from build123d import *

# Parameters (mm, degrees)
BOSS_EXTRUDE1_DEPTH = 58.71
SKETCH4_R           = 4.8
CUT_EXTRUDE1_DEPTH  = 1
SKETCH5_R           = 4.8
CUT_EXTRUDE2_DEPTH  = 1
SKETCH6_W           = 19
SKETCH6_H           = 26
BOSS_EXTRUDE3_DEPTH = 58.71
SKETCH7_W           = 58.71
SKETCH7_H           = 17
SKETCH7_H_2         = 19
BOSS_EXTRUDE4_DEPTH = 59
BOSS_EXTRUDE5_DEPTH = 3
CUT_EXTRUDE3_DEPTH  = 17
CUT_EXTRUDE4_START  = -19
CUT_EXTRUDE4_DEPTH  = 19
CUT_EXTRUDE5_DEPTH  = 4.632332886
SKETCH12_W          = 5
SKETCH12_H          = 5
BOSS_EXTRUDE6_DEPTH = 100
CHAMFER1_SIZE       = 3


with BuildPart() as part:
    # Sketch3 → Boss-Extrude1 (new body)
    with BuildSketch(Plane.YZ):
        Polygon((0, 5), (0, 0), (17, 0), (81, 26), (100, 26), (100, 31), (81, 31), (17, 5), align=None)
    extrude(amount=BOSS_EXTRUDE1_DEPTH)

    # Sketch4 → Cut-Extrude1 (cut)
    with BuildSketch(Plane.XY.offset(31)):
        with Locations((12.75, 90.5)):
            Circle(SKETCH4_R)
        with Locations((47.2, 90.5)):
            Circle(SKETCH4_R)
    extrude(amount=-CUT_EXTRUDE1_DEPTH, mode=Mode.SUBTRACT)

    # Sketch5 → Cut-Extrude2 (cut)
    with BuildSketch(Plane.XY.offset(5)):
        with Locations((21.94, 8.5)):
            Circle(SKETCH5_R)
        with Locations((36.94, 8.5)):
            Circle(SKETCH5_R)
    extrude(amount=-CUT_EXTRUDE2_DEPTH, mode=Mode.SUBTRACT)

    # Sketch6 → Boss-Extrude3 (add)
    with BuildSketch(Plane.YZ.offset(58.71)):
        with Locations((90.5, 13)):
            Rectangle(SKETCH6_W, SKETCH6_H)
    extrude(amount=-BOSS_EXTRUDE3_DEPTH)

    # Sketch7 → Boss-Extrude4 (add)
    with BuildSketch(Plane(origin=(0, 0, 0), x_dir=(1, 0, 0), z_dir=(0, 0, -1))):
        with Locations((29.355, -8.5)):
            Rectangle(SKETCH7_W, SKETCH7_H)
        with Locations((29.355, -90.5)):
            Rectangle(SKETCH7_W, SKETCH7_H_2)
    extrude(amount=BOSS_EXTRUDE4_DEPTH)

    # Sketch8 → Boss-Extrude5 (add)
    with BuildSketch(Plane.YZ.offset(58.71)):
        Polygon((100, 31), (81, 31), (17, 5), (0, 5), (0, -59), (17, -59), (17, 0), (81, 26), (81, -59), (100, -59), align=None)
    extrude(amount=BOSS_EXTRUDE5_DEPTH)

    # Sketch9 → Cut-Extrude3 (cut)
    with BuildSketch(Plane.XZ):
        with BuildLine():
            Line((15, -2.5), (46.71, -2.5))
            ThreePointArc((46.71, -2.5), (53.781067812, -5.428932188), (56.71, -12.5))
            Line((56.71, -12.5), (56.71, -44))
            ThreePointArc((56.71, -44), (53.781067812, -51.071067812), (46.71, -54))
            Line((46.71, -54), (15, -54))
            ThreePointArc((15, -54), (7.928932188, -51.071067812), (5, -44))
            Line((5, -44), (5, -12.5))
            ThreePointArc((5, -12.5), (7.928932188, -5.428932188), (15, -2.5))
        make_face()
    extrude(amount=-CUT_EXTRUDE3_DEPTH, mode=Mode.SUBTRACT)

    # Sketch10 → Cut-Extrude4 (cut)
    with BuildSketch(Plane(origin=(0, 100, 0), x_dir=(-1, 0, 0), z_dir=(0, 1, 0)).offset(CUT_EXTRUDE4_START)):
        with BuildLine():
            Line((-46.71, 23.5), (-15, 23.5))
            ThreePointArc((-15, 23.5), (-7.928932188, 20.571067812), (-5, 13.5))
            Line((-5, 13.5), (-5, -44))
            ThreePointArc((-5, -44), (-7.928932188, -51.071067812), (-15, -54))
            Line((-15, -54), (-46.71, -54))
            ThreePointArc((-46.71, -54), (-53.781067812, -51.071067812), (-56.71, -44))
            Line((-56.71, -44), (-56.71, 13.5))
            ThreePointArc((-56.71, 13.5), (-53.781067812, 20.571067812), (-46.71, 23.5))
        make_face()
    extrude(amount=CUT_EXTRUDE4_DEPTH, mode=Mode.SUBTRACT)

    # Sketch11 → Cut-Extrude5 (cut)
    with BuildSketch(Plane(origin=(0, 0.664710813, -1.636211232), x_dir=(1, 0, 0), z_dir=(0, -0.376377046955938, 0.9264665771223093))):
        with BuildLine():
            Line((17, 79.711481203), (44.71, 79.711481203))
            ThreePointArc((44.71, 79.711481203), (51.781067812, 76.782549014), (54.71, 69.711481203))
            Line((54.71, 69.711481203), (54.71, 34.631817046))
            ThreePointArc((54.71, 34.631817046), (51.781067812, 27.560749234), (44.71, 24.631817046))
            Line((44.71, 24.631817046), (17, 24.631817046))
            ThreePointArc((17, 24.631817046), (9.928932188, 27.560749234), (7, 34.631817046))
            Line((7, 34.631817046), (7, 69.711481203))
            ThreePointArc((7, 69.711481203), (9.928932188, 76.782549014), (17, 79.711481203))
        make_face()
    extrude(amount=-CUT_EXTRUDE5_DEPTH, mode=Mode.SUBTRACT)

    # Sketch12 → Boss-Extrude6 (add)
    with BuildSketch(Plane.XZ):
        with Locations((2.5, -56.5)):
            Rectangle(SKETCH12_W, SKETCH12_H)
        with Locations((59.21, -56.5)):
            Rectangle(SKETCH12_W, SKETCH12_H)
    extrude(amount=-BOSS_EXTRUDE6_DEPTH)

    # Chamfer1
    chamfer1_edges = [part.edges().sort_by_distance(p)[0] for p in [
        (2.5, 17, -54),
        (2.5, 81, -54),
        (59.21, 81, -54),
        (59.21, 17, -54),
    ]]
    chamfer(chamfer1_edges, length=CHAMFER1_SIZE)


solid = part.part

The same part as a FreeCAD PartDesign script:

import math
import FreeCAD as App
import Part
import Sketcher

V = App.Vector


def edges_at(feature, points):
    """Names of the edges that pass closest to the given points."""
    edges = feature.Shape.Edges
    near = lambda p: min(range(len(edges)), key=lambda i: edges[i].distToShape(Part.Vertex(*p))[0])
    return sorted({f"Edge{near(p) + 1}" for p in points})


def add_polygon(sketch, points):
    """Adds a closed chain of lines whose ends are joined by coincident constraints."""
    first, n = sketch.GeometryCount, len(points)
    for a, b in zip(points, points[1:] + points[:1]):
        sketch.addGeometry(Part.LineSegment(App.Vector(*a, 0), App.Vector(*b, 0)), False)
    for i in range(n):
        sketch.addConstraint(Sketcher.Constraint("Coincident", first + i, 2, first + (i + 1) % n, 1))

doc = App.newDocument("Part")
params = doc.addObject("Spreadsheet::Sheet", "Params")
for row, (alias, value) in enumerate([
    ("sketch1_width", "17 mm"),
    ("sketch1_width2", "19 mm"),
    ("sketch1_height", "5 mm"),
    ("pad1_length", "58.71 mm"),
    ("sketch2_diameter", "9.6 mm"),
    ("pocket1_length", "1 mm"),
    ("sketch3_diameter", "9.6 mm"),
    ("pocket2_length", "1 mm"),
    ("sketch4_width", "19 mm"),
    ("sketch4_height", "26 mm"),
    ("pad2_length", "58.71 mm"),
    ("sketch5_height", "17 mm"),
    ("sketch5_height2", "19 mm"),
    ("sketch5_width", "58.71 mm"),
    ("pad3_length", "59 mm"),
    ("sketch6_width", "19 mm"),
    ("sketch6_width2", "17 mm"),
    ("sketch6_height", "64 mm"),
    ("sketch6_height2", "59 mm"),
    ("sketch6_height3", "85 mm"),
    ("pad4_length", "3 mm"),
    ("sketch7_radius", "10 mm"),
    ("sketch7_height", "31.5 mm"),
    ("sketch7_width", "31.71 mm"),
    ("pocket3_length", "17 mm"),
    ("sketch8_radius", "10 mm"),
    ("sketch8_height", "57.5 mm"),
    ("sketch8_width", "31.71 mm"),
    ("pocket4_length", "19 mm"),
    ("sketch9_radius", "10 mm"),
    ("sketch9_width", "27.71 mm"),
    ("pocket5_length", "4.632333 mm"),
    ("sketch10_width", "5 mm"),
    ("pad5_length", "100 mm"),
    ("chamfer_size", "3 mm"),
], start=1):
    params.set(f"A{row}", alias)
    params.set(f"B{row}", "=" + value)
    params.setAlias(f"B{row}", alias)

body = doc.addObject("PartDesign::Body", "Body")

# Sketch on YZ plane
sketch1 = body.newObject("Sketcher::SketchObject", "Sketch")
sketch1.AttachmentSupport = (doc.getObject("YZ_Plane"), [""])
sketch1.MapMode = "FlatFace"
add_polygon(sketch1, [(0, 5), (0, 0), (17, 0), (81, 26), (100, 26), (100, 31), (81, 31), (17, 5)])  # lines 0-7
sketch1.addConstraint(Sketcher.Constraint("Vertical", 0))
sketch1.addConstraint(Sketcher.Constraint("Horizontal", 1))
sketch1.addConstraint(Sketcher.Constraint("Horizontal", 3))
sketch1.addConstraint(Sketcher.Constraint("Vertical", 4))
sketch1.addConstraint(Sketcher.Constraint("Horizontal", 5))
sketch1.addConstraint(Sketcher.Constraint("Horizontal", 7))
sketch1.addConstraint(Sketcher.Constraint("Coincident", 0, 2, -1, 1))
sketch1.addConstraint(Sketcher.Constraint("Parallel", 2, 6))
sketch1.addConstraint(Sketcher.Constraint("Vertical", 2, 2, 5, 2))
sketch1.addConstraint(Sketcher.Constraint("Vertical", 1, 2, 6, 2))
sketch1.addConstraint(Sketcher.Constraint("DistanceX", 1, 1, 1, 2, 17.0))
sketch1.addConstraint(Sketcher.Constraint("DistanceX", 3, 1, 3, 2, 19.0))
sketch1.addConstraint(Sketcher.Constraint("DistanceY", 0, 2, 0, 1, 5.0))
sketch1.addConstraint(Sketcher.Constraint("DistanceX", -1, 1, 2, 2, 81.0))
sketch1.addConstraint(Sketcher.Constraint("DistanceY", -1, 1, 2, 2, 26.0))
sketch1.setExpression("Constraints[18]", "Params.sketch1_width")
sketch1.setExpression("Constraints[19]", "Params.sketch1_width2")
sketch1.setExpression("Constraints[20]", "Params.sketch1_height")
pad1 = body.newObject("PartDesign::Pad", "Pad")
pad1.Profile = sketch1
pad1.setExpression("Length", "Params.pad1_length")

# Sketch on XY plane
sketch2 = body.newObject("Sketcher::SketchObject", "Sketch001")
sketch2.AttachmentSupport = (doc.getObject("XY_Plane"), [""])
sketch2.MapMode = "FlatFace"
sketch2.AttachmentOffset = App.Placement(V(0, 0, 31), App.Rotation())
sketch2.addGeometry(Part.Circle(V(12.75, 90.5, 0), V(0, 0, 1), 4.8), False)
sketch2.addGeometry(Part.Circle(V(47.2, 90.5, 0), V(0, 0, 1), 4.8), False)
sketch2.addConstraint(Sketcher.Constraint("Equal", 0, 1))
sketch2.addConstraint(Sketcher.Constraint("Horizontal", 0, 3, 1, 3))
sketch2.addConstraint(Sketcher.Constraint("Diameter", 0, 9.6))
sketch2.addConstraint(Sketcher.Constraint("DistanceY", -1, 1, 0, 3, 90.5))
sketch2.addConstraint(Sketcher.Constraint("DistanceX", -1, 1, 1, 3, 47.2))
sketch2.addConstraint(Sketcher.Constraint("DistanceX", -1, 1, 0, 3, 12.75))
sketch2.setExpression("Constraints[2]", "Params.sketch2_diameter")
pocket1 = body.newObject("PartDesign::Pocket", "Pocket")
pocket1.Profile = sketch2
pocket1.setExpression("Length", "Params.pocket1_length")

# Sketch on XY plane
sketch3 = body.newObject("Sketcher::SketchObject", "Sketch002")
sketch3.AttachmentSupport = (doc.getObject("XY_Plane"), [""])
sketch3.MapMode = "FlatFace"
sketch3.AttachmentOffset = App.Placement(V(0, 0, 5), App.Rotation())
sketch3.addGeometry(Part.Circle(V(21.94, 8.5, 0), V(0, 0, 1), 4.8), False)
sketch3.addGeometry(Part.Circle(V(36.94, 8.5, 0), V(0, 0, 1), 4.8), False)
sketch3.addConstraint(Sketcher.Constraint("Equal", 0, 1))
sketch3.addConstraint(Sketcher.Constraint("Horizontal", 0, 3, 1, 3))
sketch3.addConstraint(Sketcher.Constraint("Diameter", 0, 9.6))
sketch3.addConstraint(Sketcher.Constraint("DistanceX", 0, 3, 1, 3, 15.0))
sketch3.addConstraint(Sketcher.Constraint("DistanceY", -1, 1, 0, 3, 8.5))
sketch3.addConstraint(Sketcher.Constraint("DistanceX", -1, 1, 0, 3, 21.94))
sketch3.setExpression("Constraints[2]", "Params.sketch3_diameter")
pocket2 = body.newObject("PartDesign::Pocket", "Pocket001")
pocket2.Profile = sketch3
pocket2.setExpression("Length", "Params.pocket2_length")

# Sketch on YZ plane
sketch4 = body.newObject("Sketcher::SketchObject", "Sketch003")
sketch4.AttachmentSupport = (doc.getObject("YZ_Plane"), [""])
sketch4.MapMode = "FlatFace"
sketch4.AttachmentOffset = App.Placement(V(0, 0, 58.71), App.Rotation())
add_polygon(sketch4, [(81, 26), (81, 0), (100, 0), (100, 26)])  # lines 0-3
sketch4.addConstraint(Sketcher.Constraint("Vertical", 0))
sketch4.addConstraint(Sketcher.Constraint("Horizontal", 1))
sketch4.addConstraint(Sketcher.Constraint("Vertical", 2))
sketch4.addConstraint(Sketcher.Constraint("Horizontal", 3))
sketch4.addConstraint(Sketcher.Constraint("PointOnObject", 0, 2, -1))
sketch4.addConstraint(Sketcher.Constraint("DistanceX", 1, 1, 1, 2, 19.0))
sketch4.addConstraint(Sketcher.Constraint("DistanceY", 0, 2, 0, 1, 26.0))
sketch4.addConstraint(Sketcher.Constraint("DistanceX", -1, 1, 0, 2, 81.0))
sketch4.setExpression("Constraints[9]", "Params.sketch4_width")
sketch4.setExpression("Constraints[10]", "Params.sketch4_height")
pad2 = body.newObject("PartDesign::Pad", "Pad001")
pad2.Profile = sketch4
pad2.setExpression("Length", "Params.pad2_length")
pad2.Reversed = True

# Sketch on XY plane
sketch5 = body.newObject("Sketcher::SketchObject", "Sketch004")
sketch5.AttachmentSupport = (doc.getObject("XY_Plane"), [""])
sketch5.MapMode = "FlatFace"
add_polygon(sketch5, [(0, 0), (0, 17), (58.71, 17), (58.71, 0)])  # lines 0-3
add_polygon(sketch5, [(0, 81), (0, 100), (58.71, 100), (58.71, 81)])  # lines 4-7
sketch5.addConstraint(Sketcher.Constraint("Vertical", 0))
sketch5.addConstraint(Sketcher.Constraint("Horizontal", 1))
sketch5.addConstraint(Sketcher.Constraint("Vertical", 2))
sketch5.addConstraint(Sketcher.Constraint("Horizontal", 3))
sketch5.addConstraint(Sketcher.Constraint("Vertical", 4))
sketch5.addConstraint(Sketcher.Constraint("Horizontal", 5))
sketch5.addConstraint(Sketcher.Constraint("Vertical", 6))
sketch5.addConstraint(Sketcher.Constraint("Horizontal", 7))
sketch5.addConstraint(Sketcher.Constraint("Coincident", 3, 2, -1, 1))
sketch5.addConstraint(Sketcher.Constraint("PointOnObject", 4, 2, -2))
sketch5.addConstraint(Sketcher.Constraint("Vertical", 2, 2, 5, 2))
sketch5.addConstraint(Sketcher.Constraint("DistanceY", 0, 1, 0, 2, 17.0))
sketch5.addConstraint(Sketcher.Constraint("DistanceY", 4, 1, 4, 2, 19.0))
sketch5.addConstraint(Sketcher.Constraint("DistanceY", -1, 1, 4, 2, 100.0))
sketch5.addConstraint(Sketcher.Constraint("DistanceX", 1, 1, 1, 2, 58.71))
sketch5.setExpression("Constraints[19]", "Params.sketch5_height")
sketch5.setExpression("Constraints[20]", "Params.sketch5_height2")
sketch5.setExpression("Constraints[22]", "Params.sketch5_width")
pad3 = body.newObject("PartDesign::Pad", "Pad002")
pad3.Profile = sketch5
pad3.setExpression("Length", "Params.pad3_length")
pad3.Reversed = True

# Sketch on YZ plane
sketch6 = body.newObject("Sketcher::SketchObject", "Sketch005")
sketch6.AttachmentSupport = (doc.getObject("YZ_Plane"), [""])
sketch6.MapMode = "FlatFace"
sketch6.AttachmentOffset = App.Placement(V(0, 0, 58.71), App.Rotation())
add_polygon(sketch6, [(100, 31), (81, 31), (17, 5), (0, 5), (0, -59), (17, -59), (17, 0), (81, 26), (81, -59), (100, -59)])  # lines 0-9
sketch6.addConstraint(Sketcher.Constraint("Horizontal", 0))
sketch6.addConstraint(Sketcher.Constraint("Horizontal", 2))
sketch6.addConstraint(Sketcher.Constraint("Vertical", 3))
sketch6.addConstraint(Sketcher.Constraint("Horizontal", 4))
sketch6.addConstraint(Sketcher.Constraint("Vertical", 5))
sketch6.addConstraint(Sketcher.Constraint("Vertical", 7))
sketch6.addConstraint(Sketcher.Constraint("Horizontal", 8))
sketch6.addConstraint(Sketcher.Constraint("Vertical", 9))
sketch6.addConstraint(Sketcher.Constraint("PointOnObject", 2, 2, -2))
sketch6.addConstraint(Sketcher.Constraint("PointOnObject", 5, 2, -1))
sketch6.addConstraint(Sketcher.Constraint("Parallel", 1, 6))
sketch6.addConstraint(Sketcher.Constraint("Horizontal", 4, 2, 7, 2))
sketch6.addConstraint(Sketcher.Constraint("Vertical", 1, 2, 4, 2))
sketch6.addConstraint(Sketcher.Constraint("Vertical", 0, 2, 6, 2))
sketch6.addConstraint(Sketcher.Constraint("DistanceX", 0, 2, 0, 1, 19.0))
sketch6.addConstraint(Sketcher.Constraint("DistanceX", 2, 2, 2, 1, 17.0))
sketch6.addConstraint(Sketcher.Constraint("DistanceY", 3, 2, 3, 1, 64.0))
sketch6.addConstraint(Sketcher.Constraint("DistanceY", 5, 1, 5, 2, 59.0))
sketch6.addConstraint(Sketcher.Constraint("DistanceY", 7, 2, 7, 1, 85.0))
sketch6.addConstraint(Sketcher.Constraint("DistanceX", -1, 1, 0, 2, 81.0))
sketch6.setExpression("Constraints[24]", "Params.sketch6_width")
sketch6.setExpression("Constraints[25]", "Params.sketch6_width2")
sketch6.setExpression("Constraints[26]", "Params.sketch6_height")
sketch6.setExpression("Constraints[27]", "Params.sketch6_height2")
sketch6.setExpression("Constraints[28]", "Params.sketch6_height3")
pad4 = body.newObject("PartDesign::Pad", "Pad003")
pad4.Profile = sketch6
pad4.setExpression("Length", "Params.pad4_length")

# Sketch on XZ plane
sketch7 = body.newObject("Sketcher::SketchObject", "Sketch006")
sketch7.AttachmentSupport = (doc.getObject("XZ_Plane"), [""])
sketch7.MapMode = "FlatFace"
sketch7.addGeometry(Part.LineSegment(V(46.71, -2.5, 0), V(15, -2.5, 0)), False)
sketch7.addGeometry(Part.ArcOfCircle(Part.Circle(V(15, -12.5, 0), V(0, 0, 1), 10), math.radians(90), math.radians(180)), False)
sketch7.addGeometry(Part.LineSegment(V(5, -12.5, 0), V(5, -44, 0)), False)
sketch7.addGeometry(Part.ArcOfCircle(Part.Circle(V(15, -44, 0), V(0, 0, 1), 10), math.radians(180), math.radians(270)), False)
sketch7.addGeometry(Part.LineSegment(V(15, -54, 0), V(46.71, -54, 0)), False)
sketch7.addGeometry(Part.ArcOfCircle(Part.Circle(V(46.71, -44, 0), V(0, 0, 1), 10), math.radians(-90), math.radians(0)), False)
sketch7.addGeometry(Part.LineSegment(V(56.71, -44, 0), V(56.71, -12.5, 0)), False)
sketch7.addGeometry(Part.ArcOfCircle(Part.Circle(V(46.71, -12.5, 0), V(0, 0, 1), 10), math.radians(0), math.radians(90)), False)
sketch7.addConstraint(Sketcher.Constraint("Tangent", 0, 2, 1, 1))
sketch7.addConstraint(Sketcher.Constraint("Tangent", 1, 2, 2, 1))
sketch7.addConstraint(Sketcher.Constraint("Tangent", 2, 2, 3, 1))
sketch7.addConstraint(Sketcher.Constraint("Tangent", 3, 2, 4, 1))
sketch7.addConstraint(Sketcher.Constraint("Tangent", 4, 2, 5, 1))
sketch7.addConstraint(Sketcher.Constraint("Tangent", 5, 2, 6, 1))
sketch7.addConstraint(Sketcher.Constraint("Tangent", 6, 2, 7, 1))
sketch7.addConstraint(Sketcher.Constraint("Tangent", 7, 2, 0, 1))
sketch7.addConstraint(Sketcher.Constraint("Horizontal", 0))
sketch7.addConstraint(Sketcher.Constraint("Vertical", 2))
sketch7.addConstraint(Sketcher.Constraint("Horizontal", 4))
sketch7.addConstraint(Sketcher.Constraint("Vertical", 6))
sketch7.addConstraint(Sketcher.Constraint("Equal", 1, 3))
sketch7.addConstraint(Sketcher.Constraint("Equal", 3, 5))
sketch7.addConstraint(Sketcher.Constraint("Equal", 5, 7))
sketch7.addConstraint(Sketcher.Constraint("Radius", 1, 10.0))
sketch7.addConstraint(Sketcher.Constraint("DistanceY", 2, 2, 2, 1, 31.5))
sketch7.addConstraint(Sketcher.Constraint("DistanceX", -1, 1, 1, 3, 15.0))
sketch7.addConstraint(Sketcher.Constraint("DistanceY", 3, 3, -1, 1, 44.0))
sketch7.addConstraint(Sketcher.Constraint("DistanceX", 0, 2, 0, 1, 31.71))
sketch7.setExpression("Constraints[15]", "Params.sketch7_radius")
sketch7.setExpression("Constraints[16]", "Params.sketch7_height")
sketch7.setExpression("Constraints[19]", "Params.sketch7_width")
pocket3 = body.newObject("PartDesign::Pocket", "Pocket002")
pocket3.Profile = sketch7
pocket3.setExpression("Length", "Params.pocket3_length")

# Sketch on XZ plane
sketch8 = body.newObject("Sketcher::SketchObject", "Sketch007")
sketch8.AttachmentSupport = (doc.getObject("XZ_Plane"), [""])
sketch8.MapMode = "FlatFace"
sketch8.AttachmentOffset = App.Placement(V(0, 0, -81), App.Rotation())
sketch8.addGeometry(Part.LineSegment(V(15, 23.5, 0), V(46.71, 23.5, 0)), False)
sketch8.addGeometry(Part.ArcOfCircle(Part.Circle(V(46.71, 13.5, 0), V(0, 0, 1), 10), math.radians(0), math.radians(90)), False)
sketch8.addGeometry(Part.LineSegment(V(56.71, 13.5, 0), V(56.71, -44, 0)), False)
sketch8.addGeometry(Part.ArcOfCircle(Part.Circle(V(46.71, -44, 0), V(0, 0, 1), 10), math.radians(-90), math.radians(0)), False)
sketch8.addGeometry(Part.LineSegment(V(46.71, -54, 0), V(15, -54, 0)), False)
sketch8.addGeometry(Part.ArcOfCircle(Part.Circle(V(15, -44, 0), V(0, 0, 1), 10), math.radians(180), math.radians(270)), False)
sketch8.addGeometry(Part.LineSegment(V(5, -44, 0), V(5, 13.5, 0)), False)
sketch8.addGeometry(Part.ArcOfCircle(Part.Circle(V(15, 13.5, 0), V(0, 0, 1), 10), math.radians(90), math.radians(180)), False)
sketch8.addConstraint(Sketcher.Constraint("Tangent", 0, 2, 1, 2))
sketch8.addConstraint(Sketcher.Constraint("Tangent", 1, 1, 2, 1))
sketch8.addConstraint(Sketcher.Constraint("Tangent", 2, 2, 3, 2))
sketch8.addConstraint(Sketcher.Constraint("Tangent", 3, 1, 4, 1))
sketch8.addConstraint(Sketcher.Constraint("Tangent", 4, 2, 5, 2))
sketch8.addConstraint(Sketcher.Constraint("Tangent", 5, 1, 6, 1))
sketch8.addConstraint(Sketcher.Constraint("Tangent", 6, 2, 7, 2))
sketch8.addConstraint(Sketcher.Constraint("Tangent", 7, 1, 0, 1))
sketch8.addConstraint(Sketcher.Constraint("Horizontal", 0))
sketch8.addConstraint(Sketcher.Constraint("Vertical", 2))
sketch8.addConstraint(Sketcher.Constraint("Horizontal", 4))
sketch8.addConstraint(Sketcher.Constraint("Vertical", 6))
sketch8.addConstraint(Sketcher.Constraint("Equal", 1, 3))
sketch8.addConstraint(Sketcher.Constraint("Equal", 3, 5))
sketch8.addConstraint(Sketcher.Constraint("Equal", 5, 7))
sketch8.addConstraint(Sketcher.Constraint("Radius", 1, 10.0))
sketch8.addConstraint(Sketcher.Constraint("DistanceY", 2, 2, 2, 1, 57.5))
sketch8.addConstraint(Sketcher.Constraint("DistanceY", 3, 3, -1, 1, 44.0))
sketch8.addConstraint(Sketcher.Constraint("DistanceX", -1, 1, 5, 3, 15.0))
sketch8.addConstraint(Sketcher.Constraint("DistanceX", 0, 1, 0, 2, 31.71))
sketch8.setExpression("Constraints[15]", "Params.sketch8_radius")
sketch8.setExpression("Constraints[16]", "Params.sketch8_height")
sketch8.setExpression("Constraints[19]", "Params.sketch8_width")
pocket4 = body.newObject("PartDesign::Pocket", "Pocket003")
pocket4.Profile = sketch8
pocket4.setExpression("Length", "Params.pocket4_length")

# Sketch on an angled plane
sketch9 = body.newObject("Sketcher::SketchObject", "Sketch008")
sketch9.Placement = App.Placement(V(0, 0.664711, -1.636211), App.Rotation(V(1, 0, 0), V(0, 0.926466577, 0.376377047), V(0, -0.376377047, 0.926466577), "ZXY"))
sketch9.addGeometry(Part.LineSegment(V(44.71, 79.711481, 0), V(17, 79.711481, 0)), False)
sketch9.addGeometry(Part.ArcOfCircle(Part.Circle(V(17, 69.711481, 0), V(0, 0, 1), 10), math.radians(90), math.radians(180)), False)
sketch9.addGeometry(Part.LineSegment(V(7, 69.711481, 0), V(7, 34.631817, 0)), False)
sketch9.addGeometry(Part.ArcOfCircle(Part.Circle(V(17, 34.631817, 0), V(0, 0, 1), 10), math.radians(180), math.radians(270)), False)
sketch9.addGeometry(Part.LineSegment(V(17, 24.631817, 0), V(44.71, 24.631817, 0)), False)
sketch9.addGeometry(Part.ArcOfCircle(Part.Circle(V(44.71, 34.631817, 0), V(0, 0, 1), 10), math.radians(-90), math.radians(0)), False)
sketch9.addGeometry(Part.LineSegment(V(54.71, 34.631817, 0), V(54.71, 69.711481, 0)), False)
sketch9.addGeometry(Part.ArcOfCircle(Part.Circle(V(44.71, 69.711481, 0), V(0, 0, 1), 10), math.radians(0), math.radians(90)), False)
sketch9.addConstraint(Sketcher.Constraint("Tangent", 0, 2, 1, 1))
sketch9.addConstraint(Sketcher.Constraint("Tangent", 1, 2, 2, 1))
sketch9.addConstraint(Sketcher.Constraint("Tangent", 2, 2, 3, 1))
sketch9.addConstraint(Sketcher.Constraint("Tangent", 3, 2, 4, 1))
sketch9.addConstraint(Sketcher.Constraint("Tangent", 4, 2, 5, 1))
sketch9.addConstraint(Sketcher.Constraint("Tangent", 5, 2, 6, 1))
sketch9.addConstraint(Sketcher.Constraint("Tangent", 6, 2, 7, 1))
sketch9.addConstraint(Sketcher.Constraint("Tangent", 7, 2, 0, 1))
sketch9.addConstraint(Sketcher.Constraint("Horizontal", 0))
sketch9.addConstraint(Sketcher.Constraint("Vertical", 2))
sketch9.addConstraint(Sketcher.Constraint("Horizontal", 4))
sketch9.addConstraint(Sketcher.Constraint("Vertical", 6))
sketch9.addConstraint(Sketcher.Constraint("Equal", 1, 3))
sketch9.addConstraint(Sketcher.Constraint("Equal", 3, 5))
sketch9.addConstraint(Sketcher.Constraint("Equal", 5, 7))
sketch9.addConstraint(Sketcher.Constraint("Radius", 1, 10.0))
sketch9.addConstraint(Sketcher.Constraint("DistanceX", -1, 1, 1, 3, 17.0))
sketch9.addConstraint(Sketcher.Constraint("DistanceX", 0, 2, 0, 1, 27.71))
sketch9.addConstraint(Sketcher.Constraint("DistanceY", 2, 2, 2, 1, 35.079664))
sketch9.addConstraint(Sketcher.Constraint("DistanceY", -1, 1, 1, 3, 69.711481))
sketch9.setExpression("Constraints[15]", "Params.sketch9_radius")
sketch9.setExpression("Constraints[17]", "Params.sketch9_width")
pocket5 = body.newObject("PartDesign::Pocket", "Pocket004")
pocket5.Profile = sketch9
pocket5.setExpression("Length", "Params.pocket5_length")

# Sketch on XZ plane
sketch10 = body.newObject("Sketcher::SketchObject", "Sketch009")
sketch10.AttachmentSupport = (doc.getObject("XZ_Plane"), [""])
sketch10.MapMode = "FlatFace"
add_polygon(sketch10, [(0, -54), (0, -59), (5, -59), (5, -54)])  # lines 0-3
add_polygon(sketch10, [(56.71, -54), (56.71, -59), (61.71, -59), (61.71, -54)])  # lines 4-7
sketch10.addConstraint(Sketcher.Constraint("Vertical", 0))
sketch10.addConstraint(Sketcher.Constraint("Horizontal", 1))
sketch10.addConstraint(Sketcher.Constraint("Vertical", 2))
sketch10.addConstraint(Sketcher.Constraint("Horizontal", 3))
sketch10.addConstraint(Sketcher.Constraint("Vertical", 4))
sketch10.addConstraint(Sketcher.Constraint("Horizontal", 5))
sketch10.addConstraint(Sketcher.Constraint("Vertical", 6))
sketch10.addConstraint(Sketcher.Constraint("Horizontal", 7))
sketch10.addConstraint(Sketcher.Constraint("PointOnObject", 0, 2, -2))
sketch10.addConstraint(Sketcher.Constraint("Horizontal", 1, 2, 4, 2))
sketch10.addConstraint(Sketcher.Constraint("Horizontal", 3, 2, 6, 2))
sketch10.addConstraint(Sketcher.Constraint("Equal", 3, 5))
sketch10.addConstraint(Sketcher.Constraint("Equal", 7, 0))
sketch10.addConstraint(Sketcher.Constraint("DistanceX", 1, 1, 1, 2, 5.0))
sketch10.addConstraint(Sketcher.Constraint("DistanceY", 0, 2, -1, 1, 59.0))
sketch10.addConstraint(Sketcher.Constraint("DistanceX", -1, 1, 4, 2, 56.71))
sketch10.setExpression("Constraints[21]", "Params.sketch10_width")
pad5 = body.newObject("PartDesign::Pad", "Pad004")
pad5.Profile = sketch10
pad5.setExpression("Length", "Params.pad5_length")
pad5.Reversed = True
doc.recompute()

chamfer = body.newObject("PartDesign::Chamfer", "Chamfer")
chamfer.Base = (pad5, edges_at(pad5, [
    (2.5, 17, -54),
    (2.5, 81, -54),
    (59.21, 81, -54),
    (59.21, 17, -54),
]))
chamfer.setExpression("Size", "Params.chamfer_size")

doc.recompute()
